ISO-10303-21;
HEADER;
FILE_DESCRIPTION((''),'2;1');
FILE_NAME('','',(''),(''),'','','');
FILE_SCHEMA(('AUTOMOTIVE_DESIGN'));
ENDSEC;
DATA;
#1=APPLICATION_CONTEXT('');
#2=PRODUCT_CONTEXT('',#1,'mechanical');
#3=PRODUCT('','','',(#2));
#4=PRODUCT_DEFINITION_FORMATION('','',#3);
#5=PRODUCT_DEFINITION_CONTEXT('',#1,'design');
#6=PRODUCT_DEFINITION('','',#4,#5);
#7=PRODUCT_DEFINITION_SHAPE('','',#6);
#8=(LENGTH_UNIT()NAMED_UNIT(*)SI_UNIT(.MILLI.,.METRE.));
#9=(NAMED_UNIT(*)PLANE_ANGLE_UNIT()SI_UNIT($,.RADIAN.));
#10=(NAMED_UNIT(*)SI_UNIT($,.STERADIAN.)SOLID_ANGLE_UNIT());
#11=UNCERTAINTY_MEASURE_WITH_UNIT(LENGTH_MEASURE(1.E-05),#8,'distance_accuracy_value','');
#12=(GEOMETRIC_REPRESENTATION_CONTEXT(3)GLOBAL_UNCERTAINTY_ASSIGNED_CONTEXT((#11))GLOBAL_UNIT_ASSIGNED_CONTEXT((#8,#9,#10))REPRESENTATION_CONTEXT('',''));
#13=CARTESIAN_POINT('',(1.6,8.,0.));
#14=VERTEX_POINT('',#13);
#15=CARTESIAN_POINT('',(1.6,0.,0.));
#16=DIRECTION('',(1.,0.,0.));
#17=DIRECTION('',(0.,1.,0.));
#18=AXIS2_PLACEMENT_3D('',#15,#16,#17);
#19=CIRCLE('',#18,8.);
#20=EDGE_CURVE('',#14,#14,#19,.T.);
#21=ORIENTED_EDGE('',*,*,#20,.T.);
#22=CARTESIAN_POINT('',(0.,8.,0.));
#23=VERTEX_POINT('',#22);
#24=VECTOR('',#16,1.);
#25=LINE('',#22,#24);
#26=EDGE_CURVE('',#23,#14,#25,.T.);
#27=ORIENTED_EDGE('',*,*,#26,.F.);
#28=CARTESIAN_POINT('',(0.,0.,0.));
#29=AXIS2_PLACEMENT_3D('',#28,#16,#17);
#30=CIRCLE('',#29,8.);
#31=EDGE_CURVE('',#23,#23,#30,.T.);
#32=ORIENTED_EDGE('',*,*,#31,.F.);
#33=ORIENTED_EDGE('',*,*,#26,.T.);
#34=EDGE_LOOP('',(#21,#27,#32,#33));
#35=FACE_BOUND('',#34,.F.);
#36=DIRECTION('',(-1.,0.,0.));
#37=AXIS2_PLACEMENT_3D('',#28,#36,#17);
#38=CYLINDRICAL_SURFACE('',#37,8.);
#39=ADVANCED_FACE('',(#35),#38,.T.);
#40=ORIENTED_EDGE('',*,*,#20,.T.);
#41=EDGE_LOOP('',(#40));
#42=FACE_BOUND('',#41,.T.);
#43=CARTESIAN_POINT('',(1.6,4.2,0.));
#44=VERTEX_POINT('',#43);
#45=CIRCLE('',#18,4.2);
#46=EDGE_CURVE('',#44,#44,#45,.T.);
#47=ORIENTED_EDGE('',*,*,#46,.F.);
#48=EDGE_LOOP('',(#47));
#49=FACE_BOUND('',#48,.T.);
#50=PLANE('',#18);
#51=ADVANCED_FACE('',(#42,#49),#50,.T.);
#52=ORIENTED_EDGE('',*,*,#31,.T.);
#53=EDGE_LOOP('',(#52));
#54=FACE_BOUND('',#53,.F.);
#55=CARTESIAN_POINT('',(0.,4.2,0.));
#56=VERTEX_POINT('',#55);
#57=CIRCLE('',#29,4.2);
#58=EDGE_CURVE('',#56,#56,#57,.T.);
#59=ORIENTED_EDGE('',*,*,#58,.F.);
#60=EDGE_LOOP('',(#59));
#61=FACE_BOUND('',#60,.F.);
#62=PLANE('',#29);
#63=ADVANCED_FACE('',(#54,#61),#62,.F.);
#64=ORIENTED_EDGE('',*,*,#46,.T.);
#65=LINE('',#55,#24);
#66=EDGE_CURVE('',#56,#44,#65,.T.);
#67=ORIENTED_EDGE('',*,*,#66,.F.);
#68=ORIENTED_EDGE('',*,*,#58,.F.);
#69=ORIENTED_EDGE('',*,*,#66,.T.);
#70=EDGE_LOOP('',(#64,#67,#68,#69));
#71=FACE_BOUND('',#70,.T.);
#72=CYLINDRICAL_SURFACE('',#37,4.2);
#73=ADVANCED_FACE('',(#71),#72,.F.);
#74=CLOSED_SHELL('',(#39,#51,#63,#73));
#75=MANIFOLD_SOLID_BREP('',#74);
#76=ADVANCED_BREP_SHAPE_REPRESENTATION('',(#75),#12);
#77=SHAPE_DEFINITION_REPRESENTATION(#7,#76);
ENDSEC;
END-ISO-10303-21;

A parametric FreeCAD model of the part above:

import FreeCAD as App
import Part
import Sketcher
from FreeCAD import Vector

doc = App.newDocument("Part")
params = doc.addObject("Spreadsheet::Sheet", "Params")
for row, (alias, value) in enumerate([
    ("sketch1_diameter", "16 mm"),
    ("sketch1_diameter2", "8.4 mm"),
    ("pad1_length", "1.6 mm"),
], start=1):
    params.set(f"A{row}", alias)
    params.set(f"B{row}", "=" + value)
    params.setAlias(f"B{row}", alias)

body = doc.addObject("PartDesign::Body", "Body")

# Sketch on YZ plane
sketch1 = doc.addObject("Sketcher::SketchObject", "Sketch")
body.addObject(sketch1)
sketch1.AttachmentSupport = (doc.YZ_Plane, [""])
sketch1.MapMode = "FlatFace"
sketch1.addGeometry([
    Part.Circle(Vector(0, 0, 0), Vector(0, 0, 1), 8),
    Part.Circle(Vector(0, 0, 0), Vector(0, 0, 1), 4.2),
], False)
sketch1.addConstraint([
    Sketcher.Constraint("Coincident", 0, 3, -1, 1),
    Sketcher.Constraint("Coincident", 1, 3, -1, 1),
    Sketcher.Constraint("Diameter", 0, 16.0),
    Sketcher.Constraint("Diameter", 1, 8.4),
])
sketch1.setExpression("Constraints[2]", "Params.sketch1_diameter")
sketch1.setExpression("Constraints[3]", "Params.sketch1_diameter2")
pad1 = doc.addObject("PartDesign::Pad", "Pad")
body.addObject(pad1)
pad1.Profile = sketch1
pad1.setExpression("Length", "Params.pad1_length")

doc.recompute()
